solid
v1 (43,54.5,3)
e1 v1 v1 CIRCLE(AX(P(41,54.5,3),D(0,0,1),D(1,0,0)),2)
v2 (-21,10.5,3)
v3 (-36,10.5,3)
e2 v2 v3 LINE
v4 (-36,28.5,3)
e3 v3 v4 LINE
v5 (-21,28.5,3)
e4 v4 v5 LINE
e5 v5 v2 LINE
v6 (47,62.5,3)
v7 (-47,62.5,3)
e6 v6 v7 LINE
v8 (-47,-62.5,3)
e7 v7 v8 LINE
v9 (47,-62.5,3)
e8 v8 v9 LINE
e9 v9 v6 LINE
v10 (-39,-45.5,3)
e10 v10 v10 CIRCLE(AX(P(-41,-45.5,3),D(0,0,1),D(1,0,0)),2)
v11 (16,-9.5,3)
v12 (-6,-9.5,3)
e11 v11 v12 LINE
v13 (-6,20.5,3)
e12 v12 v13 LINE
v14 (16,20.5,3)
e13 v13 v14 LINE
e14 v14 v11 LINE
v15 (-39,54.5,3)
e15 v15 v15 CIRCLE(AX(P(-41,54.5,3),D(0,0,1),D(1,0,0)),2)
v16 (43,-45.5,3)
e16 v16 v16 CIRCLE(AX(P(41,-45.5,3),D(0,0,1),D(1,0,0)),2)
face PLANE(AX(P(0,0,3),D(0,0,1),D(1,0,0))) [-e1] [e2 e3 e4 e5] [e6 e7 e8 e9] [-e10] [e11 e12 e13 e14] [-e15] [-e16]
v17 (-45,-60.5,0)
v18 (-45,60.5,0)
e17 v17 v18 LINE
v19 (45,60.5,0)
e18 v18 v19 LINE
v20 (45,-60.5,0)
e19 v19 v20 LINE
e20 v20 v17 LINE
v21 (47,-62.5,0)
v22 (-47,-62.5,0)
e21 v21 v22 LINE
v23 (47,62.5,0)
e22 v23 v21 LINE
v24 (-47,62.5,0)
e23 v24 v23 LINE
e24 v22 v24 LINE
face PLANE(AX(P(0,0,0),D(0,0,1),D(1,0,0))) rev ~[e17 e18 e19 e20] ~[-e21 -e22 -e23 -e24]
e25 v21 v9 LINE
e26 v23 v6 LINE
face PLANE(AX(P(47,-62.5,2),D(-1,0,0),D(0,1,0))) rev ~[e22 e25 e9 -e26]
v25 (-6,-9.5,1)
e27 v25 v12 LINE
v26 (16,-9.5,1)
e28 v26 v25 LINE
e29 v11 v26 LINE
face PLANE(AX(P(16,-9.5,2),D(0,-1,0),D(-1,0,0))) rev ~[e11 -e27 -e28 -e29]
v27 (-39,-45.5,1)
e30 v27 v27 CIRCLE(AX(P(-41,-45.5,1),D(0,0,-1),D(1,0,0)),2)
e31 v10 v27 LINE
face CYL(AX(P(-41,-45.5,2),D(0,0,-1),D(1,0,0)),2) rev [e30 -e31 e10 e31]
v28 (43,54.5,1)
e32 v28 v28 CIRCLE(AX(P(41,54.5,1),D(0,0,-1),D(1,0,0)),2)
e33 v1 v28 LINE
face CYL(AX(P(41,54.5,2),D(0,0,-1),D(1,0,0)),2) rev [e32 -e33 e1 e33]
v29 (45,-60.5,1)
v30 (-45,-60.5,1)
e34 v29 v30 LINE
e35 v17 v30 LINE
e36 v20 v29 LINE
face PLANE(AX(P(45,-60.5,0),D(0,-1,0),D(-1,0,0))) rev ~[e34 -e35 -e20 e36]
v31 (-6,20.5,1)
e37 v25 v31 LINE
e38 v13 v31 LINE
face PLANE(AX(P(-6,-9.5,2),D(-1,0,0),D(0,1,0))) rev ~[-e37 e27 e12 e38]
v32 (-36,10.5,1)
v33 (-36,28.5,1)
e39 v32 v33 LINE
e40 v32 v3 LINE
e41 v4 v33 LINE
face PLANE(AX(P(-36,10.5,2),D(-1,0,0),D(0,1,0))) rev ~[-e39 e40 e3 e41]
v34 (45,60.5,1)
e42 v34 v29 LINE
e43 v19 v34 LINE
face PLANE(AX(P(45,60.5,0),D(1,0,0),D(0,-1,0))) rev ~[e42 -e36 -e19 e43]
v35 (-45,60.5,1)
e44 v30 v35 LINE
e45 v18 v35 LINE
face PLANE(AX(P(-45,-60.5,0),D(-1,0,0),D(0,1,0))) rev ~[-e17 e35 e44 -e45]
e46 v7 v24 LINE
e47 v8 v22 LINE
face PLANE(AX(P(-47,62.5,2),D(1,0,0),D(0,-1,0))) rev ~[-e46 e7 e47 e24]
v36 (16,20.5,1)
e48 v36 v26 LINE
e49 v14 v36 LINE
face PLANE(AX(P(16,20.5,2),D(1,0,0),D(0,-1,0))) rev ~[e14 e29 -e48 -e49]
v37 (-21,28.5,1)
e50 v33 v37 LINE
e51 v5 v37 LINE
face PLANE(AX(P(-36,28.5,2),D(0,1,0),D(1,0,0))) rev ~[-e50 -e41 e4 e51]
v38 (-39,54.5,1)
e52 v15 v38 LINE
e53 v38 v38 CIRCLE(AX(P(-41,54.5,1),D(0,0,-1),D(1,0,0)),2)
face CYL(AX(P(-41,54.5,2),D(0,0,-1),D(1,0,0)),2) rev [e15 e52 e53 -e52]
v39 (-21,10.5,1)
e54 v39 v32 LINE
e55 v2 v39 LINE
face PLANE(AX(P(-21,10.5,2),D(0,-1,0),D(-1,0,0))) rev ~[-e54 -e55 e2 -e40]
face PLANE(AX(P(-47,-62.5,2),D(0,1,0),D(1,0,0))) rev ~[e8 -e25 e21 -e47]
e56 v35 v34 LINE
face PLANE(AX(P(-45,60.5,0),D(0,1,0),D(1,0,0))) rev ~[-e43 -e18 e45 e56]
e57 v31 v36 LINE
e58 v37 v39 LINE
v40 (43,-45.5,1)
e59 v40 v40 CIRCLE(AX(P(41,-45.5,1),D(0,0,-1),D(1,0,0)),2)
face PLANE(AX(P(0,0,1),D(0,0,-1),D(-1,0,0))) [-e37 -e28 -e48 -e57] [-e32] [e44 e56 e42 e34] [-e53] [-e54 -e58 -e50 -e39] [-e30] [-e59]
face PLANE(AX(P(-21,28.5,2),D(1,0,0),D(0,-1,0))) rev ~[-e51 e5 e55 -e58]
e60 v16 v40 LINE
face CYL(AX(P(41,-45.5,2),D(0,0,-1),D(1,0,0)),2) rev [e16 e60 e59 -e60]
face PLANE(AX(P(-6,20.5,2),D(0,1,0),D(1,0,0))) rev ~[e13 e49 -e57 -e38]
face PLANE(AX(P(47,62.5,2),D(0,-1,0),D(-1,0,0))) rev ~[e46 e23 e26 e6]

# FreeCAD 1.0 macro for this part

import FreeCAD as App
import Part
import Sketcher
from FreeCAD import Vector


def add_polygon(sketch, points):
    """Adds a closed chain of lines whose ends are joined by coincident constraints."""
    first, n = sketch.GeometryCount, len(points)
    for a, b in zip(points, points[1:] + points[:1]):
        sketch.addGeometry(Part.LineSegment(App.Vector(*a, 0), App.Vector(*b, 0)), False)
    for i in range(n):
        sketch.addConstraint(Sketcher.Constraint("Coincident", first + i, 2, first + (i + 1) % n, 1))

doc = App.newDocument("Part")
body = doc.addObject("PartDesign::Body", "Body")

sketch1 = doc.addObject("Sketcher::SketchObject", "Sketch")
body.addObject(sketch1)
sketch1.AttachmentSupport = (doc.XY_Plane, [""])
sketch1.MapMode = "FlatFace"
add_polygon(sketch1, [(-47, -62.5), (47, -62.5), (47, 62.5), (-47, 62.5)])
sketch1.addGeometry(Part.Circle(Vector(-41, -45.5, 0), Vector(0, 0, 1), 2), False)
sketch1.addGeometry(Part.Circle(Vector(41, -45.5, 0), Vector(0, 0, 1), 2), False)
add_polygon(sketch1, [(-21, 28.5), (-21, 10.5), (-36, 10.5), (-36, 28.5)])
sketch1.addGeometry(Part.Circle(Vector(-41, 54.5, 0), Vector(0, 0, 1), 2), False)
add_polygon(sketch1, [(-6, 20.5), (16, 20.5), (16, -9.5), (-6, -9.5)])
sketch1.addGeometry(Part.Circle(Vector(41, 54.5, 0), Vector(0, 0, 1), 2), False)
sketch1.addConstraint([
    Sketcher.Constraint("Horizontal", 0),
    Sketcher.Constraint("Vertical", 1),
    Sketcher.Constraint("Horizontal", 2),
    Sketcher.Constraint("Vertical", 3),
    Sketcher.Constraint("Vertical", 6),
    Sketcher.Constraint("Horizontal", 7),
    Sketcher.Constraint("Vertical", 8),
    Sketcher.Constraint("Horizontal", 9),
    Sketcher.Constraint("Horizontal", 11),
    Sketcher.Constraint("Vertical", 12),
    Sketcher.Constraint("Horizontal", 13),
    Sketcher.Constraint("Vertical", 14),
    Sketcher.Constraint("Equal", 4, 5),
    Sketcher.Constraint("Equal", 5, 10),
    Sketcher.Constraint("Equal", 10, 15),
    Sketcher.Constraint("Symmetric", 0, 2, 2, 2, -1, 1),
    Sketcher.Constraint("Symmetric", 4, 3, 5, 3, -2),
    Sketcher.Constraint("Symmetric", 10, 3, 15, 3, -2),
    Sketcher.Constraint("Vertical", 4, 3, 10, 3),
    Sketcher.Constraint("Diameter", 4, 4.0),
    Sketcher.Constraint("DistanceX", 0, 1, 0, 2, 94.0),
    Sketcher.Constraint("DistanceX", 7, 2, 7, 1, 15.0),
    Sketcher.Constraint("DistanceX", 11, 1, 11, 2, 22.0),
    Sketcher.Constraint("DistanceY", 1, 1, 1, 2, 125.0),
    Sketcher.Constraint("DistanceY", 6, 2, 6, 1, 18.0),
    Sketcher.Constraint("DistanceY", 12, 2, 12, 1, 30.0),
    Sketcher.Constraint("DistanceX", 4, 3, -1, 1, 41.0),
    Sketcher.Constraint("DistanceX", 6, 2, -1, 1, 21.0),
    Sketcher.Constraint("DistanceX", -1, 1, 11, 2, 16.0),
    Sketcher.Constraint("DistanceY", 4, 3, 10, 3, 100.0),
    Sketcher.Constraint("DistanceY", 0, 2, 5, 3, 17.0),
    Sketcher.Constraint("DistanceY", 6, 2, 10, 3, 44.0),
    Sketcher.Constraint("DistanceY", 11, 2, 9, 2, 8.0),
])
pad1 = doc.addObject("PartDesign::Pad", "Pad")
body.addObject(pad1)
pad1.Profile = sketch1
pad1.Length = 2

sketch2 = doc.addObject("Sketcher::SketchObject", "Sketch001")
body.addObject(sketch2)
sketch2.AttachmentSupport = (doc.XY_Plane, [""])
sketch2.MapMode = "FlatFace"
add_polygon(sketch2, [(-45, -60.5), (-45, 60.5), (45, 60.5), (45, -60.5)])
sketch2.addConstraint([
    Sketcher.Constraint("Vertical", 0),
    Sketcher.Constraint("Horizontal", 1),
    Sketcher.Constraint("Vertical", 2),
    Sketcher.Constraint("Horizontal", 3),
    Sketcher.Constraint("Symmetric", 0, 2, 2, 2, -1, 1),
    Sketcher.Constraint("DistanceX", 1, 1, 1, 2, 90.0),
    Sketcher.Constraint("DistanceY", 0, 1, 0, 2, 121.0),
])
pocket1 = doc.addObject("PartDesign::Pocket", "Pocket")
body.addObject(pocket1)
pocket1.Profile = sketch2
pocket1.Length = 1
pocket1.Reversed = True

sketch3 = doc.addObject("Sketcher::SketchObject", "Sketch002")
body.addObject(sketch3)
sketch3.AttachmentSupport = (doc.XY_Plane, [""])
sketch3.MapMode = "FlatFace"
sketch3.AttachmentOffset = App.Placement(Vector(0, 0, 2), App.Rotation())
add_polygon(sketch3, [(-47, -62.5), (47, -62.5), (47, 62.5), (-47, 62.5)])
sketch3.addGeometry(Part.Circle(Vector(-41, -45.5, 0), Vector(0, 0, 1), 2), False)
sketch3.addGeometry(Part.Circle(Vector(41, -45.5, 0), Vector(0, 0, 1), 2), False)
add_polygon(sketch3, [(-21, 10.5), (-36, 10.5), (-36, 28.5), (-21, 28.5)])
sketch3.addGeometry(Part.Circle(Vector(-41, 54.5, 0), Vector(0, 0, 1), 2), False)
add_polygon(sketch3, [(16, -9.5), (-6, -9.5), (-6, 20.5), (16, 20.5)])
sketch3.addGeometry(Part.Circle(Vector(41, 54.5, 0), Vector(0, 0, 1), 2), False)
sketch3.addConstraint([
    Sketcher.Constraint("Horizontal", 0),
    Sketcher.Constraint("Vertical", 1),
    Sketcher.Constraint("Horizontal", 2),
    Sketcher.Constraint("Vertical", 3),
    Sketcher.Constraint("Horizontal", 6),
    Sketcher.Constraint("Vertical", 7),
    Sketcher.Constraint("Horizontal", 8),
    Sketcher.Constraint("Vertical", 9),
    Sketcher.Constraint("Horizontal", 11),
    Sketcher.Constraint("Vertical", 12),
    Sketcher.Constraint("Horizontal", 13),
    Sketcher.Constraint("Vertical", 14),
    Sketcher.Constraint("Equal", 4, 5),
    Sketcher.Constraint("Equal", 5, 10),
    Sketcher.Constraint("Equal", 10, 15),
    Sketcher.Constraint("Symmetric", 0, 2, 2, 2, -1, 1),
    Sketcher.Constraint("Symmetric", 4, 3, 5, 3, -2),
    Sketcher.Constraint("Symmetric", 10, 3, 15, 3, -2),
    Sketcher.Constraint("Vertical", 4, 3, 10, 3),
    Sketcher.Constraint("Diameter", 4, 4.0),
    Sketcher.Constraint("DistanceX", 0, 1, 0, 2, 94.0),
    Sketcher.Constraint("DistanceX", 6, 2, 6, 1, 15.0),
    Sketcher.Constraint("DistanceX", 11, 2, 11, 1, 22.0),
    Sketcher.Constraint("DistanceY", 1, 1, 1, 2, 125.0),
    Sketcher.Constraint("DistanceY", 7, 1, 7, 2, 18.0),
    Sketcher.Constraint("DistanceY", 12, 1, 12, 2, 30.0),
    Sketcher.Constraint("DistanceX", 4, 3, -1, 1, 41.0),
    Sketcher.Constraint("DistanceX", 6, 2, -1, 1, 36.0),
    Sketcher.Constraint("DistanceX", 11, 2, -1, 1, 6.0),
    Sketcher.Constraint("DistanceY", 4, 3, 10, 3, 100.0),
    Sketcher.Constraint("DistanceY", 0, 2, 5, 3, 17.0),
    Sketcher.Constraint("DistanceY", 6, 2, 10, 3, 44.0),
    Sketcher.Constraint("DistanceY", 11, 2, 9, 2, 20.0),
])
pad2 = doc.addObject("PartDesign::Pad", "Pad001")
body.addObject(pad2)
pad2.Profile = sketch3
pad2.Length = 1

doc.recompute()
